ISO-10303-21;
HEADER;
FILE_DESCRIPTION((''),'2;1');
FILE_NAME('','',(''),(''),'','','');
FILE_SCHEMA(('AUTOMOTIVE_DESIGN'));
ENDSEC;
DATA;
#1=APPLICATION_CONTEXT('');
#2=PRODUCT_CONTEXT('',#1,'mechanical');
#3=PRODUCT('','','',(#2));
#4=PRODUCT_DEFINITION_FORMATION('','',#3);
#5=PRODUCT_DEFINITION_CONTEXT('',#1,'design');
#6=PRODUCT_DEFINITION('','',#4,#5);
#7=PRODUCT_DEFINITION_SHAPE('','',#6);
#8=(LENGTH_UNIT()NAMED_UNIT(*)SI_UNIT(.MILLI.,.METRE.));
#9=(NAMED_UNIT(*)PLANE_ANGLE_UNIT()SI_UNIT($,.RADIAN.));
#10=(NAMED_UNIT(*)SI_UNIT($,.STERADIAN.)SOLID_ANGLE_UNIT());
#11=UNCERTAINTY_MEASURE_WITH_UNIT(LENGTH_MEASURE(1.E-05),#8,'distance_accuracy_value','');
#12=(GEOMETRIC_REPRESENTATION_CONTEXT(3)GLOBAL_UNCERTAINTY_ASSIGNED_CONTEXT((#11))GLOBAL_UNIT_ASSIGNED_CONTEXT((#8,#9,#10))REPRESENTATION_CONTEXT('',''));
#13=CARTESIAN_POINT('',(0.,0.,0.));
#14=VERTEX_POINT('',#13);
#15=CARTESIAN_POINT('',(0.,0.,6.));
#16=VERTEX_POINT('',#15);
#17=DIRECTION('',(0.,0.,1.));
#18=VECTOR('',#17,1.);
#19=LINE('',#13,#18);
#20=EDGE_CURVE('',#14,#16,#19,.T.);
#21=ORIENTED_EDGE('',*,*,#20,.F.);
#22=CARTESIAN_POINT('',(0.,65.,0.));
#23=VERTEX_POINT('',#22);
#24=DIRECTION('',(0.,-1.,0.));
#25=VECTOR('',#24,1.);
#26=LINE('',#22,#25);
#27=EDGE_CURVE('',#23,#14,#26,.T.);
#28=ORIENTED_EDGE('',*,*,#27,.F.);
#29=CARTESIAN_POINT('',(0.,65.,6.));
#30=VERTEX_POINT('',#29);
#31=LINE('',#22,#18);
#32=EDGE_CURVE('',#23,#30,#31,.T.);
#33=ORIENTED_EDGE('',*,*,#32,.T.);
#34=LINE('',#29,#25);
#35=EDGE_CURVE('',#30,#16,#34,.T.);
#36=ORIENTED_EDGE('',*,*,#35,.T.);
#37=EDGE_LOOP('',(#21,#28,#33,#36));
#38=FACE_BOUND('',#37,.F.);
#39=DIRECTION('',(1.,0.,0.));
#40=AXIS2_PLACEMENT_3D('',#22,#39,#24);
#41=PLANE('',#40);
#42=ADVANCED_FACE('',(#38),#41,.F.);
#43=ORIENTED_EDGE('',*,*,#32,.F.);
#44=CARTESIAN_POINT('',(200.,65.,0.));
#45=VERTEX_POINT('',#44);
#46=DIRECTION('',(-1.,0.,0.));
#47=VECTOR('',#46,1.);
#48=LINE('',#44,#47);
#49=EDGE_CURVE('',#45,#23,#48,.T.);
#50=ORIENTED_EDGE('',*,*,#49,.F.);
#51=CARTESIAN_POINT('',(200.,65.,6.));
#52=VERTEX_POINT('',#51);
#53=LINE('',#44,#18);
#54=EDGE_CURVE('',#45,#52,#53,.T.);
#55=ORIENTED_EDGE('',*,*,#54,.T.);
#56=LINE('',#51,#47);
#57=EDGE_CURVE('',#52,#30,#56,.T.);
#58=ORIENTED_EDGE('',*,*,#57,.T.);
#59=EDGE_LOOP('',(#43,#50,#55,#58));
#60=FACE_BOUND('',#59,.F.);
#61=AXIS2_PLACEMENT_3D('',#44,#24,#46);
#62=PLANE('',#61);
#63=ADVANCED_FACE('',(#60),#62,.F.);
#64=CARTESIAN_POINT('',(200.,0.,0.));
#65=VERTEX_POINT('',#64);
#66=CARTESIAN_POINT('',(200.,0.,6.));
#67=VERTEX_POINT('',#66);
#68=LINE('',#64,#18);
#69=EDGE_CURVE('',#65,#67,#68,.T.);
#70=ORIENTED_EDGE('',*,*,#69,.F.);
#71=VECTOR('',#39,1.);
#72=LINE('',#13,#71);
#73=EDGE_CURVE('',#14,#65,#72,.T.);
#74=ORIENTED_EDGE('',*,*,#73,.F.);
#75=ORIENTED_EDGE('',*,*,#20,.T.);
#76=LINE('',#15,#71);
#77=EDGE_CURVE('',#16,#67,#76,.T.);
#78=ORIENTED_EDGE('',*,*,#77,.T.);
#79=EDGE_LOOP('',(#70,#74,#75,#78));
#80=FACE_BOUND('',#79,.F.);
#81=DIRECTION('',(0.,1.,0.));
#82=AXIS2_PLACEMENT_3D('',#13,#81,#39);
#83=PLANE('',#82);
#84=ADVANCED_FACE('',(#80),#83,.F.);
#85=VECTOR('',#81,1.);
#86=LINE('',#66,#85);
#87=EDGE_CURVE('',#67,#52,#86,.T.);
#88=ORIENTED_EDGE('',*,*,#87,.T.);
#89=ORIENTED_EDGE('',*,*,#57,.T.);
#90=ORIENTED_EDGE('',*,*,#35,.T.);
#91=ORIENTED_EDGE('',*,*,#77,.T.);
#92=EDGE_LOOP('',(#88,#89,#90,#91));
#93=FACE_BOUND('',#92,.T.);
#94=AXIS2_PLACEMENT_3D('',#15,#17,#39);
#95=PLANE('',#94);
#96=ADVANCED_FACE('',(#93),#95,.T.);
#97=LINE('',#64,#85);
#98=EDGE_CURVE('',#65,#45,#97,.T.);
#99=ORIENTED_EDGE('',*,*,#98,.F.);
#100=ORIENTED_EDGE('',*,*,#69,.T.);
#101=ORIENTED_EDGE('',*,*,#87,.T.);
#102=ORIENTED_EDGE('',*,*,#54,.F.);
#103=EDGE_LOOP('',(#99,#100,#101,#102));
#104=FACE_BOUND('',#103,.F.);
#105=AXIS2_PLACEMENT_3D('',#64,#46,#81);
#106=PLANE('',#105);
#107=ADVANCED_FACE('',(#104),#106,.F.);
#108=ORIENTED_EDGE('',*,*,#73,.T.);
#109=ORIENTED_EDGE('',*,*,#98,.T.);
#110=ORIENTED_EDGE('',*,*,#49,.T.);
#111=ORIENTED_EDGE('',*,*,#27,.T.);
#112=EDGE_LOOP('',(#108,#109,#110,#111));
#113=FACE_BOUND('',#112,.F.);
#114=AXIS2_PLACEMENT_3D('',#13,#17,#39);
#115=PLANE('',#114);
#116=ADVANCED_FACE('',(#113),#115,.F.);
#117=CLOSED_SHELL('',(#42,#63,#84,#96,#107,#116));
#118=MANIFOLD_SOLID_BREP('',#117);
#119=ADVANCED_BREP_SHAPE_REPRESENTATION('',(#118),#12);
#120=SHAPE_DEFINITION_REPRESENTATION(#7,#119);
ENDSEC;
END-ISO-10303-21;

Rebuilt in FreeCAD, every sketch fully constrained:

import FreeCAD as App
import Part
import Sketcher
from FreeCAD import Vector
Q = App.Units.Quantity


def add_polygon(sketch, points):
    """Adds a closed chain of lines whose ends are joined by coincident constraints."""
    first, n = sketch.GeometryCount, len(points)
    for a, b in zip(points, points[1:] + points[:1]):
        sketch.addGeometry(Part.LineSegment(App.Vector(*a, 0), App.Vector(*b, 0)), False)
    for i in range(n):
        sketch.addConstraint(Sketcher.Constraint("Coincident", first + i, 2, first + (i + 1) % n, 1))

doc = App.newDocument("Part")
body = doc.addObject("PartDesign::Body", "Body")

sketch1 = doc.addObject("Sketcher::SketchObject", "Sketch")
body.addObject(sketch1)
sketch1.AttachmentSupport = (doc.XY_Plane, [""])
sketch1.MapMode = "FlatFace"
add_polygon(sketch1, [(0, 65), (0, 0), (200, 0), (200, 65)])
sketch1.addConstraint(Sketcher.Constraint("Vertical", 0))
sketch1.addConstraint(Sketcher.Constraint("Horizontal", 1))
sketch1.addConstraint(Sketcher.Constraint("Vertical", 2))
sketch1.addConstraint(Sketcher.Constraint("Horizontal", 3))
sketch1.addConstraint(Sketcher.Constraint("Coincident", 0, 2, -1, 1))
sketch1.addConstraint(Sketcher.Constraint("DistanceX", 1, 1, 1, 2, Q("200 mm")))
sketch1.addConstraint(Sketcher.Constraint("DistanceY", 0, 2, 0, 1, Q("65 mm")))
pad1 = doc.addObject("PartDesign::Pad", "Pad")
body.addObject(pad1)
pad1.Profile = sketch1
pad1.Length = 6

doc.recompute()
